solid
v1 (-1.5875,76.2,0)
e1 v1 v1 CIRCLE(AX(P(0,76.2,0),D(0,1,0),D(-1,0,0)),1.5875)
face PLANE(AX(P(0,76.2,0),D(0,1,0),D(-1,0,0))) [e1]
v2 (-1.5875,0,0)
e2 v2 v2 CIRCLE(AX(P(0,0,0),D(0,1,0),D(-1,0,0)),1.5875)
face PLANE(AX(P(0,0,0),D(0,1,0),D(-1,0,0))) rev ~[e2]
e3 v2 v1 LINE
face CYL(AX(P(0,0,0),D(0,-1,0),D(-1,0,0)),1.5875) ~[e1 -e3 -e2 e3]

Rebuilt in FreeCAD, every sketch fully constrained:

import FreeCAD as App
import Part
import Sketcher
from FreeCAD import Vector
Q = App.Units.Quantity

doc = App.newDocument("Part")
body = doc.addObject("PartDesign::Body", "Body")

sketch1 = body.newObject("Sketcher::SketchObject", "Sketch")
sketch1.AttachmentSupport = (doc.getObject("XZ_Plane"), [""])
sketch1.MapMode = "FlatFace"
sketch1.addGeometry(Part.Circle(Vector(0, 0, 0), Vector(0, 0, 1), 1.6), False)
sketch1.addConstraint([
    Sketcher.Constraint("Coincident", 0, 3, -1, 1),
    Sketcher.Constraint("Diameter", 0, Q("0.125 in")),
])
pad1 = body.newObject("PartDesign::Pad", "Pad")
pad1.Profile = sketch1
pad1.Length = Q("3 in")
pad1.Reversed = True

doc.recompute()
